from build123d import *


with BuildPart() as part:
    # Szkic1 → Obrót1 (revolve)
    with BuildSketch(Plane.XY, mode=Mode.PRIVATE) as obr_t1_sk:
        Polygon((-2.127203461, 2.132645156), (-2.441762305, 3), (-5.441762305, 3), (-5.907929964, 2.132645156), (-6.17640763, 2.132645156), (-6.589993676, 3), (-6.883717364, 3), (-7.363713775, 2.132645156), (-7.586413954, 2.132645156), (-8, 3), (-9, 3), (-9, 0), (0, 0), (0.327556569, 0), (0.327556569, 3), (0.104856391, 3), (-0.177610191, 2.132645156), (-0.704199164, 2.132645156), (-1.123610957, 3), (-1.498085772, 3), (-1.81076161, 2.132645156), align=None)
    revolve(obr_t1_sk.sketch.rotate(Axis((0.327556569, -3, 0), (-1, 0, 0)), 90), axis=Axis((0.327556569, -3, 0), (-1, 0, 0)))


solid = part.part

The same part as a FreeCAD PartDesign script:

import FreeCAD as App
import Part
import Sketcher
from FreeCAD import Vector
Q = App.Units.Quantity


def add_polygon(sketch, points):
    """Adds a closed chain of lines whose ends are joined by coincident constraints."""
    first, n = sketch.GeometryCount, len(points)
    for a, b in zip(points, points[1:] + points[:1]):
        sketch.addGeometry(Part.LineSegment(App.Vector(*a, 0), App.Vector(*b, 0)), False)
    for i in range(n):
        sketch.addConstraint(Sketcher.Constraint("Coincident", first + i, 2, first + (i + 1) % n, 1))

doc = App.newDocument("Part")
params = doc.addObject("Spreadsheet::Sheet", "Params")
for row, (alias, value) in enumerate([
    ("sketch1_width", "3 mm"),
    ("sketch1_width2", "1 mm"),
    ("revolution_angle", "360 deg"),
], start=1):
    params.set(f"A{row}", alias)
    params.set(f"B{row}", "=" + value)
    params.setAlias(f"B{row}", alias)

body = doc.addObject("PartDesign::Body", "Body")

# Sketch on XY plane
sketch1 = body.newObject("Sketcher::SketchObject", "Sketch")
sketch1.AttachmentSupport = (doc.getObject("XY_Plane"), [""])
sketch1.MapMode = "FlatFace"
add_polygon(sketch1, [(-2.13, 2.13), (-2.44, 3), (-5.44, 3), (-5.91, 2.13), (-6.18, 2.13), (-6.59, 3), (-6.88, 3), (-7.36, 2.13), (-7.59, 2.13), (-8, 3), (-9, 3), (-9, 0), (0.33, 0), (0.33, 3), (0.1, 3), (-0.18, 2.13), (-0.7, 2.13), (-1.12, 3), (-1.5, 3), (-1.81, 2.13)])  # lines 0-19
sketch1.addGeometry(Part.LineSegment(Vector(0.33, -3, 0), Vector(-9, -3, 0)), True)  # axis
sketch1.addConstraint(Sketcher.Constraint("Horizontal", 1))
sketch1.addConstraint(Sketcher.Constraint("Horizontal", 3))
sketch1.addConstraint(Sketcher.Constraint("Horizontal", 5))
sketch1.addConstraint(Sketcher.Constraint("Horizontal", 7))
sketch1.addConstraint(Sketcher.Constraint("Horizontal", 9))
sketch1.addConstraint(Sketcher.Constraint("Vertical", 10))
sketch1.addConstraint(Sketcher.Constraint("Horizontal", 11))
sketch1.addConstraint(Sketcher.Constraint("Vertical", 12))
sketch1.addConstraint(Sketcher.Constraint("Horizontal", 13))
sketch1.addConstraint(Sketcher.Constraint("Horizontal", 15))
sketch1.addConstraint(Sketcher.Constraint("Horizontal", 17))
sketch1.addConstraint(Sketcher.Constraint("Horizontal", 19))
sketch1.addConstraint(Sketcher.Constraint("Horizontal", 20))
sketch1.addConstraint(Sketcher.Constraint("Symmetric", 12, 2, 20, 1, -1))
sketch1.addConstraint(Sketcher.Constraint("Symmetric", 9, 2, 20, 2, -1))
sketch1.addConstraint(Sketcher.Constraint("PointOnObject", 10, 2, -1))
sketch1.addConstraint(Sketcher.Constraint("Parallel", 4, 8))
sketch1.addConstraint(Sketcher.Constraint("Horizontal", 1, 2, 4, 2))
sketch1.addConstraint(Sketcher.Constraint("Horizontal", 3, 2, 6, 2))
sketch1.addConstraint(Sketcher.Constraint("Horizontal", 5, 2, 8, 2))
sketch1.addConstraint(Sketcher.Constraint("Horizontal", 7, 2, 14, 2))
sketch1.addConstraint(Sketcher.Constraint("Horizontal", 13, 2, 16, 2))
sketch1.addConstraint(Sketcher.Constraint("Horizontal", 15, 2, 18, 2))
sketch1.addConstraint(Sketcher.Constraint("Equal", 7, 13))
sketch1.addConstraint(Sketcher.Constraint("Equal", 1, 10))
sketch1.addConstraint(Sketcher.Constraint("DistanceX", 1, 2, 1, 1, Q("3 mm")))
sketch1.addConstraint(Sketcher.Constraint("DistanceX", 9, 2, 9, 1, Q("1 mm")))
sketch1.addConstraint(Sketcher.Constraint("DistanceX", 8, 2, -1, 1, Q("8 mm")))
sketch1.addConstraint(Sketcher.Constraint("DistanceX", 7, 2, 7, 1, Q("0.2227 mm")))
sketch1.addConstraint(Sketcher.Constraint("DistanceX", 16, 2, 14, 2, Q("0.946001 mm")))
sketch1.addConstraint(Sketcher.Constraint("DistanceX", 0, 2, 18, 2, Q("0.631001 mm")))
sketch1.addConstraint(Sketcher.Constraint("DistanceX", 15, 2, 15, 1, Q("0.526589 mm")))
sketch1.addConstraint(Sketcher.Constraint("DistanceX", 19, 2, 19, 1, Q("0.316442 mm")))
sketch1.addConstraint(Sketcher.Constraint("DistanceX", 15, 2, -1, 1, Q("0.704199 mm")))
sketch1.addConstraint(Sketcher.Constraint("Distance", 2, Q("0.984691 mm")))
sketch1.addConstraint(Sketcher.Constraint("Distance", 14, Q("0.912191 mm")))
sketch1.addConstraint(Sketcher.Constraint("DistanceX", 3, 2, 3, 1, Q("0.268478 mm")))
sketch1.addConstraint(Sketcher.Constraint("DistanceX", 5, 2, 5, 1, Q("0.293724 mm")))
sketch1.addConstraint(Sketcher.Constraint("DistanceX", 11, 1, 11, 2, Q("9.327557 mm")))
sketch1.addConstraint(Sketcher.Constraint("DistanceX", 17, 2, 17, 1, Q("0.374475 mm")))
sketch1.addConstraint(Sketcher.Constraint("DistanceX", 2, 2, -1, 1, Q("5.90793 mm")))
sketch1.addConstraint(Sketcher.Constraint("DistanceX", 4, 2, 1, 2, Q("1.148231 mm")))
sketch1.setExpression("Constraints[45]", "Params.sketch1_width")
sketch1.setExpression("Constraints[46]", "Params.sketch1_width2")
revolution = body.newObject("PartDesign::Revolution", "Revolution")
revolution.Profile = sketch1
revolution.ReferenceAxis = (sketch1, ["Axis0"])
revolution.setExpression("Angle", "Params.revolution_angle")

doc.recompute()
